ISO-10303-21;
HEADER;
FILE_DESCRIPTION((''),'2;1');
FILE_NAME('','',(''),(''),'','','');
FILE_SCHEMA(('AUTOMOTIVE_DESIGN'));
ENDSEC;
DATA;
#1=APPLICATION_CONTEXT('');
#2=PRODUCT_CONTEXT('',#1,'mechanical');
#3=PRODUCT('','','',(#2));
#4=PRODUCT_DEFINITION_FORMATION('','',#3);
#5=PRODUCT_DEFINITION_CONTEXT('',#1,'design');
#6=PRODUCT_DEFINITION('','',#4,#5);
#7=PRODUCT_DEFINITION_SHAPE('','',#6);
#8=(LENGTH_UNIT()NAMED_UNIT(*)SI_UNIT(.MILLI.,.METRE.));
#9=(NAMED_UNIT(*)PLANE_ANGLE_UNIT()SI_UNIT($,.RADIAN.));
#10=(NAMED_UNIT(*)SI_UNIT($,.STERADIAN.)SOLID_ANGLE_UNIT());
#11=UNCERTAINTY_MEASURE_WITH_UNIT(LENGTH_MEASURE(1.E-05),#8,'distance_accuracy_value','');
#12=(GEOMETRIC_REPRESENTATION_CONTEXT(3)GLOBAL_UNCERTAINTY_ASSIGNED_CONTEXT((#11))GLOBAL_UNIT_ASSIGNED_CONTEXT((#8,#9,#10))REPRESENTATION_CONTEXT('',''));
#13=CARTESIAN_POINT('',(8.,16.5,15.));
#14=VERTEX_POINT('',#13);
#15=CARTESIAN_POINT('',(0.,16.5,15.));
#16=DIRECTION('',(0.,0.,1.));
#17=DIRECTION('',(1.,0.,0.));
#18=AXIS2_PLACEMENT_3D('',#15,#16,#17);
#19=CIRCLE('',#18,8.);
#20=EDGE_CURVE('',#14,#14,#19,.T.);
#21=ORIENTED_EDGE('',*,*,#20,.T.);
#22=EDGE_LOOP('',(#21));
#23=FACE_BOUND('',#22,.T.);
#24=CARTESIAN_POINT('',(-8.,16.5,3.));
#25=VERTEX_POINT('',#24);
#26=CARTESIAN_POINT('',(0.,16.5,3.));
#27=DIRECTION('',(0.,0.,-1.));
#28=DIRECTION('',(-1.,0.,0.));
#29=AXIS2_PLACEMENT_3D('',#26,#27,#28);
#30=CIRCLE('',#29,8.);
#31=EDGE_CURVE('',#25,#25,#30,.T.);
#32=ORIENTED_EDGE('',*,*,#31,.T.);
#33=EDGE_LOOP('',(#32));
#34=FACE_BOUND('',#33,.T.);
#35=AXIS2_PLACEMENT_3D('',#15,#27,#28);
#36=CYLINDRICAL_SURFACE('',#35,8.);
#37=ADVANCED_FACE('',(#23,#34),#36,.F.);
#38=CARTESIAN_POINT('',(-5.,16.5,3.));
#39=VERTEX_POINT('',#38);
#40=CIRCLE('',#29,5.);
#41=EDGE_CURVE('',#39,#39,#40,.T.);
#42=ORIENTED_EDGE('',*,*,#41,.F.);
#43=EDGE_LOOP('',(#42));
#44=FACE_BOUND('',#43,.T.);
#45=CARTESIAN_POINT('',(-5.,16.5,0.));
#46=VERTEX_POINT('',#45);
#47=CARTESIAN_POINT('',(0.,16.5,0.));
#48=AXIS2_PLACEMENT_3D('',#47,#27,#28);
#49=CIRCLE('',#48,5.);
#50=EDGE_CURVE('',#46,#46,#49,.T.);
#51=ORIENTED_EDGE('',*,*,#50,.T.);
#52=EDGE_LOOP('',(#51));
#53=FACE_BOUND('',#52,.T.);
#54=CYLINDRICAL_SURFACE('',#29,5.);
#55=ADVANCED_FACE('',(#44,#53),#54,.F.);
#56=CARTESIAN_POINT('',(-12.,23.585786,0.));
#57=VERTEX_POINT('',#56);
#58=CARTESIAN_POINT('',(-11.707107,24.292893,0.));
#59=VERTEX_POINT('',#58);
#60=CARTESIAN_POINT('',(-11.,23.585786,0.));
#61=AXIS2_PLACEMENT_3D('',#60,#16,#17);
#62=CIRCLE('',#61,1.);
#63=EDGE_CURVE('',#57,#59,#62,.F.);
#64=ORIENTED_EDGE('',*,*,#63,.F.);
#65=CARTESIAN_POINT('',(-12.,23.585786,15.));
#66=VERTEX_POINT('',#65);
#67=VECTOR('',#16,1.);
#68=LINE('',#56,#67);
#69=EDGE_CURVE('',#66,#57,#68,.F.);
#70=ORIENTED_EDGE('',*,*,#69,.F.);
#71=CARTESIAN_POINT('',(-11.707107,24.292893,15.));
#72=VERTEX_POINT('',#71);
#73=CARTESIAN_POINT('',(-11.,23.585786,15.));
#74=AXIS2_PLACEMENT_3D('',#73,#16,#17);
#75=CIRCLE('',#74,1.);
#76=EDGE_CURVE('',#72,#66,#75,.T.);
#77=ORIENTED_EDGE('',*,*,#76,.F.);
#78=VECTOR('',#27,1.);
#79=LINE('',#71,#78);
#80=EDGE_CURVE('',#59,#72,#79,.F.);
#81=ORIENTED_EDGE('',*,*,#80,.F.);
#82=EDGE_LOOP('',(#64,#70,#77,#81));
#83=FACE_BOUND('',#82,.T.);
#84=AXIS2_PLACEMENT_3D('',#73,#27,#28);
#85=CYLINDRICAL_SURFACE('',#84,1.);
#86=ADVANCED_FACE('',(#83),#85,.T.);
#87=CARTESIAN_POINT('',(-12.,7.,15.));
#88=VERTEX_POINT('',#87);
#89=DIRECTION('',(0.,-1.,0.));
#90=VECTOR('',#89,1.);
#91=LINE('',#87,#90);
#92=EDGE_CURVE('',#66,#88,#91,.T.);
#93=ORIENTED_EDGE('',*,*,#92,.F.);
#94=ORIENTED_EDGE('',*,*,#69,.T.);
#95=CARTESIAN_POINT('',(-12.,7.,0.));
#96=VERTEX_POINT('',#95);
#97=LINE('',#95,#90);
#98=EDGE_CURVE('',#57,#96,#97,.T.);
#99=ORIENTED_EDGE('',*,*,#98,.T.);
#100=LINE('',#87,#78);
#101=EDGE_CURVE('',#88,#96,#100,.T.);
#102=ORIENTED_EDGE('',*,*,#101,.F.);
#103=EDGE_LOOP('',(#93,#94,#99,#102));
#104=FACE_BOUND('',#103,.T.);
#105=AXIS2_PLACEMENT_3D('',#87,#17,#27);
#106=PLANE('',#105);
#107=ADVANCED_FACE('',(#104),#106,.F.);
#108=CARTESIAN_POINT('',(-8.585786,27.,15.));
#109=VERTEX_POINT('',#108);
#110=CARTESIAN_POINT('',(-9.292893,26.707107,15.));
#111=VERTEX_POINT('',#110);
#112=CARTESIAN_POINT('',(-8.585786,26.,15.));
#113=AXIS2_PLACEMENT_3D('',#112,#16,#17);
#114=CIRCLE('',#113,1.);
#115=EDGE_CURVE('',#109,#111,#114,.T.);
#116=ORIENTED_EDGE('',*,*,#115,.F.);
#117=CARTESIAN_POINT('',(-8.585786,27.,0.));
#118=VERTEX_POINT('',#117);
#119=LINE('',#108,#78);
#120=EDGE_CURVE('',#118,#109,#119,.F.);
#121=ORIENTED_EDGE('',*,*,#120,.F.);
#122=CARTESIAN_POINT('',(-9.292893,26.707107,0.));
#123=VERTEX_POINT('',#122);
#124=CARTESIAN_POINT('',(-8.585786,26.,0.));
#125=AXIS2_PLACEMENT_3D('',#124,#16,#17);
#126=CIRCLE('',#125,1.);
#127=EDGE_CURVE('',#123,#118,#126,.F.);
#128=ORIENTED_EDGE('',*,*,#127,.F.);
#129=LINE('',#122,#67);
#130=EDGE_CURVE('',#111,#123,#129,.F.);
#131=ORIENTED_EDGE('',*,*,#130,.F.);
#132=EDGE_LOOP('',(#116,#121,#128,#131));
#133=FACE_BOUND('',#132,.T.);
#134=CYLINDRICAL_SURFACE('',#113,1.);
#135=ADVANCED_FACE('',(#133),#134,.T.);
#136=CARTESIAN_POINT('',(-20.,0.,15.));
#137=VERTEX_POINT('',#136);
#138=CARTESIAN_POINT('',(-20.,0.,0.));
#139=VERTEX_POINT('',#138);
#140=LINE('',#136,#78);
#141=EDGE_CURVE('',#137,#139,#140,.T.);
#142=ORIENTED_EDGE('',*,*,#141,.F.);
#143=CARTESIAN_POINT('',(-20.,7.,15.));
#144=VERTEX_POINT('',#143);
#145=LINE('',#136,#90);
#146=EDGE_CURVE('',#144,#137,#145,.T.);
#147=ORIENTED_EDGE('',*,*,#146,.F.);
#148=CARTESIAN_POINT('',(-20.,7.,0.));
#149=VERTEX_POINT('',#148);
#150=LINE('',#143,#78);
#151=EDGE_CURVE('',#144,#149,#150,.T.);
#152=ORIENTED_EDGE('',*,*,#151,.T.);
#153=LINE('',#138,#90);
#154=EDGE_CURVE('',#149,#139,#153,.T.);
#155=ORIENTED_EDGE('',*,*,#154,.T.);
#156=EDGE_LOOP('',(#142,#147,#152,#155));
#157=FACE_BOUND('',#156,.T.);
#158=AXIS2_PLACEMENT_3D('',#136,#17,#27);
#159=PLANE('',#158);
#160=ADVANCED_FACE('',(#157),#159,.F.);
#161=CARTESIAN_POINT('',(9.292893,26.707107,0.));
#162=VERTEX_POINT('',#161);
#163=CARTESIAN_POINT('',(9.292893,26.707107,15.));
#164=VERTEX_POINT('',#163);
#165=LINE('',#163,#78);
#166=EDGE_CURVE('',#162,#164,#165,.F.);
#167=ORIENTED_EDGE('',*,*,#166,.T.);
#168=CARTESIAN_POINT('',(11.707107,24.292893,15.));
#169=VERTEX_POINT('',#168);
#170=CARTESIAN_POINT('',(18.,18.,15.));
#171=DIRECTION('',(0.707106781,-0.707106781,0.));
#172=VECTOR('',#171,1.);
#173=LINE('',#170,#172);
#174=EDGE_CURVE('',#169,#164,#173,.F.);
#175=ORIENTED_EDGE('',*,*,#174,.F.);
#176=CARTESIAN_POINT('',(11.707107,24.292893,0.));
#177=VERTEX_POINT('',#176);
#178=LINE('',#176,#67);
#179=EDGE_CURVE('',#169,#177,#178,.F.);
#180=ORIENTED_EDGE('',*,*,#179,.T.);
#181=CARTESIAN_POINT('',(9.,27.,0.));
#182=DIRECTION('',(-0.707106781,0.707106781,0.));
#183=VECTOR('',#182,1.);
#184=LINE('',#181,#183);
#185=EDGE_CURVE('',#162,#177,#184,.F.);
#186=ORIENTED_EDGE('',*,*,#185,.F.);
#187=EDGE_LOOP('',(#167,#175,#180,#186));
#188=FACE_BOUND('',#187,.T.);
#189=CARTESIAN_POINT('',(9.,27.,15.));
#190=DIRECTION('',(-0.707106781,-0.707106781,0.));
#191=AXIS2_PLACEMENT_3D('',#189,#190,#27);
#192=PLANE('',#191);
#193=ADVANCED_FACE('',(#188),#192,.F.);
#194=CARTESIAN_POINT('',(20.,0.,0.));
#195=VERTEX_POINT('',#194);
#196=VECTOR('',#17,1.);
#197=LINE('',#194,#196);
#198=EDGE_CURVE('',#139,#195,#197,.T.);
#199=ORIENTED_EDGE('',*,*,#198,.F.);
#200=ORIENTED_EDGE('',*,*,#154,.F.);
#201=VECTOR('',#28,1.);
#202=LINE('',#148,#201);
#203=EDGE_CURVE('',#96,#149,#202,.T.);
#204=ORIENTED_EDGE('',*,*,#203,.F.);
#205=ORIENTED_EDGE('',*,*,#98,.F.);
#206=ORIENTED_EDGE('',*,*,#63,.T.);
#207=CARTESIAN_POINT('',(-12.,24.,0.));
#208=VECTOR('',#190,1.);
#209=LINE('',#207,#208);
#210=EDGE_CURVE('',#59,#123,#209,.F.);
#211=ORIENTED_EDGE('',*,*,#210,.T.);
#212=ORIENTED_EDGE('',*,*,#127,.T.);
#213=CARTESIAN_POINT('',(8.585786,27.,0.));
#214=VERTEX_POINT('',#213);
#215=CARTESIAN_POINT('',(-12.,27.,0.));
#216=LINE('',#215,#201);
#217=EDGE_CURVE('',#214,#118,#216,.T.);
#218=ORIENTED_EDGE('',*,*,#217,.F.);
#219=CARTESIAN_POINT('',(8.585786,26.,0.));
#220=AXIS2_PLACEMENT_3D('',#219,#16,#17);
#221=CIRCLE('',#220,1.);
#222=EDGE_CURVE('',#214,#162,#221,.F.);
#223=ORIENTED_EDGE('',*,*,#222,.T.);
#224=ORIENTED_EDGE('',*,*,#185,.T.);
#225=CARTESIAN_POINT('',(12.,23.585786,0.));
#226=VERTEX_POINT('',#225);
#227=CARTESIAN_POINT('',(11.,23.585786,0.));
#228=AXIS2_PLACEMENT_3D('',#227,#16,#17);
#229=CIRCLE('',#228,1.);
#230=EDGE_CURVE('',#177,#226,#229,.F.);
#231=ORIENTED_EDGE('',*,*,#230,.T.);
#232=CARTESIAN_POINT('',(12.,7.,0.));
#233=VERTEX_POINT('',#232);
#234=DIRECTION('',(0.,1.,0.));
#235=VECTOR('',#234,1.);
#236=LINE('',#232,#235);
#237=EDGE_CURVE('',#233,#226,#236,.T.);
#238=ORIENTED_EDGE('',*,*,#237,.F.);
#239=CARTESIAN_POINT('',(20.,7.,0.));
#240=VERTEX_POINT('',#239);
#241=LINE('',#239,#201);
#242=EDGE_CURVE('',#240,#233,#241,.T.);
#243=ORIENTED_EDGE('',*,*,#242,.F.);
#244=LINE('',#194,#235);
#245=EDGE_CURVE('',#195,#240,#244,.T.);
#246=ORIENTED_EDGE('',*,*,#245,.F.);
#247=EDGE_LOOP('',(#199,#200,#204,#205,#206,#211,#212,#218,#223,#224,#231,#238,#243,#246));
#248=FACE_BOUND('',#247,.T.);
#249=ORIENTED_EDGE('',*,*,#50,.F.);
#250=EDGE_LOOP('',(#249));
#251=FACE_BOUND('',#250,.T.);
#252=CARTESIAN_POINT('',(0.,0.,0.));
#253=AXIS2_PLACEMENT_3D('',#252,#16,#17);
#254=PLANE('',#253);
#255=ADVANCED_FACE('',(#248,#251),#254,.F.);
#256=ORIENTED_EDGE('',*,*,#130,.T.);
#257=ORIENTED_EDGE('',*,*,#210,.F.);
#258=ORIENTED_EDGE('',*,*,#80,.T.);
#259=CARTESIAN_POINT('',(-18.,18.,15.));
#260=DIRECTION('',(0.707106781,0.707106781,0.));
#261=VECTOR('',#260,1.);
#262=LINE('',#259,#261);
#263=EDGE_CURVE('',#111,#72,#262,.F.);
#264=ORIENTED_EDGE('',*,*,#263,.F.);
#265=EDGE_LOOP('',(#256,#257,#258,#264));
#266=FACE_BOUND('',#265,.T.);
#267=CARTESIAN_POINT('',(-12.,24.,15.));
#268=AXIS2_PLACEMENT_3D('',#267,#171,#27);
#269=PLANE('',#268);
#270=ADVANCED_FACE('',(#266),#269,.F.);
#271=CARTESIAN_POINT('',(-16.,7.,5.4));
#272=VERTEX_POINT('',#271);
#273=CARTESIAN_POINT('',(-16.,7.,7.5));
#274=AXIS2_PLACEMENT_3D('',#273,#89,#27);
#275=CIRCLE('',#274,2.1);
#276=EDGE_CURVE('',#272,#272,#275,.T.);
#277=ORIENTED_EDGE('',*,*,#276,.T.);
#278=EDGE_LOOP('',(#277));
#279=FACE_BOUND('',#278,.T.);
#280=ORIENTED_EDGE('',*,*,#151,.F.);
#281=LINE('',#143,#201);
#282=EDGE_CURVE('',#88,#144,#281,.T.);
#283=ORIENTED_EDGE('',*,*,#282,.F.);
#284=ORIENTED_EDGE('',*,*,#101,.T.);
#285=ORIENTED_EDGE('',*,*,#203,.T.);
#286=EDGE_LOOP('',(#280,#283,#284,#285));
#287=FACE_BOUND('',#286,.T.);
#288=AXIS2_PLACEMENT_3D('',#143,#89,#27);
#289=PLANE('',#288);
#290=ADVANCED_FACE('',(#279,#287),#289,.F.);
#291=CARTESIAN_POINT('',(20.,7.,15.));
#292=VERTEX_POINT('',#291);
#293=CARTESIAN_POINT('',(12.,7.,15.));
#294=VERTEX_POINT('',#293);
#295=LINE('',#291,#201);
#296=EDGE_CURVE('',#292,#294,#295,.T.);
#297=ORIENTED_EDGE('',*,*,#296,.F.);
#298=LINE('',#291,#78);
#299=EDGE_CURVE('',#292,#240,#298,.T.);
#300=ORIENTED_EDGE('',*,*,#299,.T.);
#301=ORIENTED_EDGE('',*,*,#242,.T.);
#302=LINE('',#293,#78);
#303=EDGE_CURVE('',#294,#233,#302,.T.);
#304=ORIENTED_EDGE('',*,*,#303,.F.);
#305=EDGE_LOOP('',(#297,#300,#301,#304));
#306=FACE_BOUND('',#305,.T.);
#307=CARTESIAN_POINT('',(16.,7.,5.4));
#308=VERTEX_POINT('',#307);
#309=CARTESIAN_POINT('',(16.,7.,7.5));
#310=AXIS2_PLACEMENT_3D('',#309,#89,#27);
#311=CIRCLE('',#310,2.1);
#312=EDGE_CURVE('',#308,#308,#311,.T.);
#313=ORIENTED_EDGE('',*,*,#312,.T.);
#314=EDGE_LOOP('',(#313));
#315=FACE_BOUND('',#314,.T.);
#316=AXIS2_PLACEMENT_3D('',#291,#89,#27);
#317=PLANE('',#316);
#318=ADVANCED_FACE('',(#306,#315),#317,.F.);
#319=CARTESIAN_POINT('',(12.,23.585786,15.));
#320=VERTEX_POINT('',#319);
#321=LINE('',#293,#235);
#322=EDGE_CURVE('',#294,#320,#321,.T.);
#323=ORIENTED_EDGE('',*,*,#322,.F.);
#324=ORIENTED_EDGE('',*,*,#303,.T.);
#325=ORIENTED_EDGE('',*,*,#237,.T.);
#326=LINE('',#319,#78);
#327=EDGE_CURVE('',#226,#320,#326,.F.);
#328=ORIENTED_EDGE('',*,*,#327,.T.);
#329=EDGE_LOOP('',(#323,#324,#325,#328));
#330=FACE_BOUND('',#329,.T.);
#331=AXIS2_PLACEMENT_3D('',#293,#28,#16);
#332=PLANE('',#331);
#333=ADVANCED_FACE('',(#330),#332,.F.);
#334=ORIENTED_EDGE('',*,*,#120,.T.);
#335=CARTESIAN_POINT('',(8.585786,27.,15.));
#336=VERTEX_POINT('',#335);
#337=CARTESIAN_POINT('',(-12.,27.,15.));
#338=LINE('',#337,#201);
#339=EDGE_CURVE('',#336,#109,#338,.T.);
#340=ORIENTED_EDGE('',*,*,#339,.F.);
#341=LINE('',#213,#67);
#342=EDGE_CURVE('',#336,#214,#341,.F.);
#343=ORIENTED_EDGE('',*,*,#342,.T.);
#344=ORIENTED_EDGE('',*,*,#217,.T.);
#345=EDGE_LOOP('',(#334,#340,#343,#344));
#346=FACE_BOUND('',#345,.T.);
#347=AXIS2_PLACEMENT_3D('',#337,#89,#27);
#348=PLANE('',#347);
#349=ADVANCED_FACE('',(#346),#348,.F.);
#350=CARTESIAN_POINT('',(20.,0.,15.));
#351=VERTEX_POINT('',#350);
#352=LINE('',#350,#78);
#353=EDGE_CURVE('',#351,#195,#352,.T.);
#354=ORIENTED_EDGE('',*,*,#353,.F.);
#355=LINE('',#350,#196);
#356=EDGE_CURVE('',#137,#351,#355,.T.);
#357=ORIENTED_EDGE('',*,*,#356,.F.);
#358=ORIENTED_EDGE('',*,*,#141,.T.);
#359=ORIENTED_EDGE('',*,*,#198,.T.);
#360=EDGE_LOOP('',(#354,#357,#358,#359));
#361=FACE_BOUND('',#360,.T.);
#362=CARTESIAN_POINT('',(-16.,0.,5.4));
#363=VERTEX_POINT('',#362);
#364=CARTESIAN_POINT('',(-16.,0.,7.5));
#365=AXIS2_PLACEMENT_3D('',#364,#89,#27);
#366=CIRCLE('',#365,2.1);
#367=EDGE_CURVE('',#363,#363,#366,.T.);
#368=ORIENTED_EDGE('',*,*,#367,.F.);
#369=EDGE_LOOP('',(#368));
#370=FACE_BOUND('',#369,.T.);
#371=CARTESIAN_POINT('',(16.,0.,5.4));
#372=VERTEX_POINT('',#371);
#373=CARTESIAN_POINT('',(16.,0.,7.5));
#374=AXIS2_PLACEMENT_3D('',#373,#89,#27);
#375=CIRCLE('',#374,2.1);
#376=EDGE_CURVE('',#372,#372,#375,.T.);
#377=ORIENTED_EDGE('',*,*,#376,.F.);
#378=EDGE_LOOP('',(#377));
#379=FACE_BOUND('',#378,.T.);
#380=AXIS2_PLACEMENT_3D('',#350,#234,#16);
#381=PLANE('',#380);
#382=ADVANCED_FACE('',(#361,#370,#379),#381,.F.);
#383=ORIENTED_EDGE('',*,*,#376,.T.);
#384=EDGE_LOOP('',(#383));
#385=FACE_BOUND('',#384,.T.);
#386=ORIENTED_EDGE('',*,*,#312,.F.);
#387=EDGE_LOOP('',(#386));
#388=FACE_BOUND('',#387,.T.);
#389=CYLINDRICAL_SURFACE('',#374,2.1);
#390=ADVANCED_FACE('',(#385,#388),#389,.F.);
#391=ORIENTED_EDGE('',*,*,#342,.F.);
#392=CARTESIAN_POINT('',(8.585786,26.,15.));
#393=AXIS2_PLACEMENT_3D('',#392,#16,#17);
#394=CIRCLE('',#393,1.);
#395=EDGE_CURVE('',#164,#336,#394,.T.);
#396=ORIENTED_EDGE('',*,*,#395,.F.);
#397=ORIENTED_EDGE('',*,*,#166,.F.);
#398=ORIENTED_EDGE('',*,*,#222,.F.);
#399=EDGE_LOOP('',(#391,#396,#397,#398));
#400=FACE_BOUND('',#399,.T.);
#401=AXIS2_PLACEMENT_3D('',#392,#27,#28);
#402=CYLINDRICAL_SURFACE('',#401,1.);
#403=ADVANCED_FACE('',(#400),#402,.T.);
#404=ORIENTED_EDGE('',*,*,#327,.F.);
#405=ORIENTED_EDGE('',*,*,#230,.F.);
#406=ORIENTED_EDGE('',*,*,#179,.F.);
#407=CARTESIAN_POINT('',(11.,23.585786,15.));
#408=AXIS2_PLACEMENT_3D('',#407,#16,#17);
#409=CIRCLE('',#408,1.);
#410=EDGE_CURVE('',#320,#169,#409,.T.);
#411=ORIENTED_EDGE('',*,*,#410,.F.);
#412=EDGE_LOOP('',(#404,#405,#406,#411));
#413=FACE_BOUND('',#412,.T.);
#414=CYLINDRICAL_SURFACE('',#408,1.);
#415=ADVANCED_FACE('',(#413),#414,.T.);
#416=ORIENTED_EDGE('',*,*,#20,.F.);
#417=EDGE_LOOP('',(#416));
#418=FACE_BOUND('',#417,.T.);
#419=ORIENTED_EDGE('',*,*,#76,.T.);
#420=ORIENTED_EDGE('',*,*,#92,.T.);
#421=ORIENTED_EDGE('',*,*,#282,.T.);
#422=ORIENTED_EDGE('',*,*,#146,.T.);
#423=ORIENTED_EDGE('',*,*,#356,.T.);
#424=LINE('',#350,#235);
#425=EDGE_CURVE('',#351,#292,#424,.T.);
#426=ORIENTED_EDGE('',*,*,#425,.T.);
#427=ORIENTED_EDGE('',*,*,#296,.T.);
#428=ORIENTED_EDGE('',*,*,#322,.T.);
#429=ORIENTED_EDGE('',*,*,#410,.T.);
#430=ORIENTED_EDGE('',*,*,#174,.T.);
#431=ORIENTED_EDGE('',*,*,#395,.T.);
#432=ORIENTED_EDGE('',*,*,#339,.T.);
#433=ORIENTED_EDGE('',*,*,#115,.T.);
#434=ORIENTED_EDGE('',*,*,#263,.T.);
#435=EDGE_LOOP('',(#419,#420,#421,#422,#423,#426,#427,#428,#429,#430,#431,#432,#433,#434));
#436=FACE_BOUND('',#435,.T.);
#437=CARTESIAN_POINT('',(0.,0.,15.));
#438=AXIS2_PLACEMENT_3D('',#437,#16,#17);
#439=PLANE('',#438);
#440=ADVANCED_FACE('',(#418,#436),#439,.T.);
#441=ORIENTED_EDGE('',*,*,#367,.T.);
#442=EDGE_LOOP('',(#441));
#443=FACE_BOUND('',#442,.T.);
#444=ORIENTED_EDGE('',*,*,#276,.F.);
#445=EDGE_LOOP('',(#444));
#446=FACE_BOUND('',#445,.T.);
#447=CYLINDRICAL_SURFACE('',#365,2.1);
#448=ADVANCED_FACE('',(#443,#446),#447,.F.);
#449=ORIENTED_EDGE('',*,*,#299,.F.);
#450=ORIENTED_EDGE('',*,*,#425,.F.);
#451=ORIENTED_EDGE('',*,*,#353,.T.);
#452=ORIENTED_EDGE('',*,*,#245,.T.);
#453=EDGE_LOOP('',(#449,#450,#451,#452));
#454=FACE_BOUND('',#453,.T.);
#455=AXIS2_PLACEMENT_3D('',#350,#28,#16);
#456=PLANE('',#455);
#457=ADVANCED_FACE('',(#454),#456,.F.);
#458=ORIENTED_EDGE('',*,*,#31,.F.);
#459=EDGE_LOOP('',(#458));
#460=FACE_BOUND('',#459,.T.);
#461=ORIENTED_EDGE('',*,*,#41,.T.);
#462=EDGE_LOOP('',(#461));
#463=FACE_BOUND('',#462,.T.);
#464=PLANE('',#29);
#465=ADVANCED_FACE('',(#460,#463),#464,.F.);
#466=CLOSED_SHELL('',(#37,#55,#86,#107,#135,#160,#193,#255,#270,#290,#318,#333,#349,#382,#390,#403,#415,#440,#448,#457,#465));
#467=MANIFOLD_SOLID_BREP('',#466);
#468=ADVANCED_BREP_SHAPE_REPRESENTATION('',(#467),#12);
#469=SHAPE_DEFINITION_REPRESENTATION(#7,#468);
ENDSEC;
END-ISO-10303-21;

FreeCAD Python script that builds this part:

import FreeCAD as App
import Part
import Sketcher
from FreeCAD import Vector


def edges_at(feature, points):
    """Names of the edges that pass closest to the given points."""
    edges = feature.Shape.Edges
    near = lambda p: min(range(len(edges)), key=lambda i: edges[i].distToShape(Part.Vertex(*p))[0])
    return sorted({f"Edge{near(p) + 1}" for p in points})


def add_polygon(sketch, points):
    """Adds a closed chain of lines whose ends are joined by coincident constraints."""
    first, n = sketch.GeometryCount, len(points)
    for a, b in zip(points, points[1:] + points[:1]):
        sketch.addGeometry(Part.LineSegment(App.Vector(*a, 0), App.Vector(*b, 0)), False)
    for i in range(n):
        sketch.addConstraint(Sketcher.Constraint("Coincident", first + i, 2, first + (i + 1) % n, 1))

doc = App.newDocument("Part")
body = doc.addObject("PartDesign::Body", "Body")

# Sketch on XY plane
sketch1 = body.newObject("Sketcher::SketchObject", "Sketch")
sketch1.AttachmentSupport = (doc.getObject("XY_Plane"), [""])
sketch1.MapMode = "FlatFace"
add_polygon(sketch1, [(-20, 0), (20, 0), (20, 7), (12, 7), (12, 27), (-12, 27), (-12, 7), (-20, 7)])  # lines 0-7
sketch1.addGeometry(Part.Circle(Vector(0, 16, 0), Vector(0, 0, 1), 8), False)  # 8
sketch1.addConstraint(Sketcher.Constraint("Horizontal", 0))
sketch1.addConstraint(Sketcher.Constraint("Vertical", 1))
sketch1.addConstraint(Sketcher.Constraint("Horizontal", 2))
sketch1.addConstraint(Sketcher.Constraint("Vertical", 3))
sketch1.addConstraint(Sketcher.Constraint("Horizontal", 4))
sketch1.addConstraint(Sketcher.Constraint("Vertical", 5))
sketch1.addConstraint(Sketcher.Constraint("Horizontal", 6))
sketch1.addConstraint(Sketcher.Constraint("Vertical", 7))
sketch1.addConstraint(Sketcher.Constraint("Symmetric", 0, 2, 7, 2, -1, 1))
sketch1.addConstraint(Sketcher.Constraint("Symmetric", 2, 2, 5, 2, -2))
sketch1.addConstraint(Sketcher.Constraint("PointOnObject", 8, 3, -2))
sketch1.addConstraint(Sketcher.Constraint("Diameter", 8, 16.0))
sketch1.addConstraint(Sketcher.Constraint("DistanceX", 0, 1, 0, 2, 40.0))
sketch1.addConstraint(Sketcher.Constraint("DistanceX", 2, 2, 2, 1, 8.0))
sketch1.addConstraint(Sketcher.Constraint("DistanceY", 1, 1, 1, 2, 7.0))
sketch1.addConstraint(Sketcher.Constraint("DistanceY", 3, 1, 3, 2, 20.0))
sketch1.addConstraint(Sketcher.Constraint("DistanceY", -1, 1, 8, 3, 16.5))
pad1 = body.newObject("PartDesign::Pad", "Pad")
pad1.Profile = sketch1
pad1.Length = 15
doc.recompute()

chamfer = body.newObject("PartDesign::Chamfer", "Chamfer")
chamfer.Base = (pad1, edges_at(pad1, [(-12, 27, 7.5), (12, 27, 7.5)]))
chamfer.Size = 3

# Sketch on XY plane
sketch2 = body.newObject("Sketcher::SketchObject", "Sketch001")
sketch2.AttachmentSupport = (doc.getObject("XY_Plane"), [""])
sketch2.MapMode = "FlatFace"
sketch2.addGeometry(Part.Circle(Vector(0, 16, 0), Vector(0, 0, 1), 8), False)
sketch2.addGeometry(Part.Circle(Vector(0, 16, 0), Vector(0, 0, 1), 5), False)
sketch2.addConstraint(Sketcher.Constraint("Coincident", 1, 3, 0, 3))
sketch2.addConstraint(Sketcher.Constraint("PointOnObject", 0, 3, -2))
sketch2.addConstraint(Sketcher.Constraint("Diameter", 0, 16.0))
sketch2.addConstraint(Sketcher.Constraint("Diameter", 1, 10.0))
sketch2.addConstraint(Sketcher.Constraint("DistanceY", -1, 1, 0, 3, 16.5))
pad2 = body.newObject("PartDesign::Pad", "Pad001")
pad2.Profile = sketch2
pad2.Length = 3

# Sketch on XZ plane
sketch3 = body.newObject("Sketcher::SketchObject", "Sketch002")
sketch3.AttachmentSupport = (doc.getObject("XZ_Plane"), [""])
sketch3.MapMode = "FlatFace"
sketch3.addGeometry(Part.Circle(Vector(-16, 7.5, 0), Vector(0, 0, 1), 2.1), False)
sketch3.addGeometry(Part.Circle(Vector(16, 7.5, 0), Vector(0, 0, 1), 2.1), False)
sketch3.addConstraint(Sketcher.Constraint("Equal", 0, 1))
sketch3.addConstraint(Sketcher.Constraint("Symmetric", 0, 3, 1, 3, -2))
sketch3.addConstraint(Sketcher.Constraint("Diameter", 0, 4.2))
sketch3.addConstraint(Sketcher.Constraint("DistanceX", 0, 3, -1, 1, 16.0))
sketch3.addConstraint(Sketcher.Constraint("DistanceY", -1, 1, 0, 3, 7.5))
doc.recompute()
hole = body.newObject("PartDesign::Hole", "Hole")
hole.Profile = sketch3
hole.ThreadType = "None"
hole.Diameter = 4.2
hole.DepthType = "Dimension"
hole.Depth = 103.56
hole.DrillPoint = "Angled"
hole.DrillPointAngle = 118
doc.recompute()

fillet = body.newObject("PartDesign::Fillet", "Fillet")
fillet.Base = (hole, edges_at(hole, [
    (-12, 24, 7.5),
    (9, 27, 7.5),
    (-9, 27, 7.5),
    (12, 24, 7.5),
]))
fillet.Radius = 1

doc.recompute()
